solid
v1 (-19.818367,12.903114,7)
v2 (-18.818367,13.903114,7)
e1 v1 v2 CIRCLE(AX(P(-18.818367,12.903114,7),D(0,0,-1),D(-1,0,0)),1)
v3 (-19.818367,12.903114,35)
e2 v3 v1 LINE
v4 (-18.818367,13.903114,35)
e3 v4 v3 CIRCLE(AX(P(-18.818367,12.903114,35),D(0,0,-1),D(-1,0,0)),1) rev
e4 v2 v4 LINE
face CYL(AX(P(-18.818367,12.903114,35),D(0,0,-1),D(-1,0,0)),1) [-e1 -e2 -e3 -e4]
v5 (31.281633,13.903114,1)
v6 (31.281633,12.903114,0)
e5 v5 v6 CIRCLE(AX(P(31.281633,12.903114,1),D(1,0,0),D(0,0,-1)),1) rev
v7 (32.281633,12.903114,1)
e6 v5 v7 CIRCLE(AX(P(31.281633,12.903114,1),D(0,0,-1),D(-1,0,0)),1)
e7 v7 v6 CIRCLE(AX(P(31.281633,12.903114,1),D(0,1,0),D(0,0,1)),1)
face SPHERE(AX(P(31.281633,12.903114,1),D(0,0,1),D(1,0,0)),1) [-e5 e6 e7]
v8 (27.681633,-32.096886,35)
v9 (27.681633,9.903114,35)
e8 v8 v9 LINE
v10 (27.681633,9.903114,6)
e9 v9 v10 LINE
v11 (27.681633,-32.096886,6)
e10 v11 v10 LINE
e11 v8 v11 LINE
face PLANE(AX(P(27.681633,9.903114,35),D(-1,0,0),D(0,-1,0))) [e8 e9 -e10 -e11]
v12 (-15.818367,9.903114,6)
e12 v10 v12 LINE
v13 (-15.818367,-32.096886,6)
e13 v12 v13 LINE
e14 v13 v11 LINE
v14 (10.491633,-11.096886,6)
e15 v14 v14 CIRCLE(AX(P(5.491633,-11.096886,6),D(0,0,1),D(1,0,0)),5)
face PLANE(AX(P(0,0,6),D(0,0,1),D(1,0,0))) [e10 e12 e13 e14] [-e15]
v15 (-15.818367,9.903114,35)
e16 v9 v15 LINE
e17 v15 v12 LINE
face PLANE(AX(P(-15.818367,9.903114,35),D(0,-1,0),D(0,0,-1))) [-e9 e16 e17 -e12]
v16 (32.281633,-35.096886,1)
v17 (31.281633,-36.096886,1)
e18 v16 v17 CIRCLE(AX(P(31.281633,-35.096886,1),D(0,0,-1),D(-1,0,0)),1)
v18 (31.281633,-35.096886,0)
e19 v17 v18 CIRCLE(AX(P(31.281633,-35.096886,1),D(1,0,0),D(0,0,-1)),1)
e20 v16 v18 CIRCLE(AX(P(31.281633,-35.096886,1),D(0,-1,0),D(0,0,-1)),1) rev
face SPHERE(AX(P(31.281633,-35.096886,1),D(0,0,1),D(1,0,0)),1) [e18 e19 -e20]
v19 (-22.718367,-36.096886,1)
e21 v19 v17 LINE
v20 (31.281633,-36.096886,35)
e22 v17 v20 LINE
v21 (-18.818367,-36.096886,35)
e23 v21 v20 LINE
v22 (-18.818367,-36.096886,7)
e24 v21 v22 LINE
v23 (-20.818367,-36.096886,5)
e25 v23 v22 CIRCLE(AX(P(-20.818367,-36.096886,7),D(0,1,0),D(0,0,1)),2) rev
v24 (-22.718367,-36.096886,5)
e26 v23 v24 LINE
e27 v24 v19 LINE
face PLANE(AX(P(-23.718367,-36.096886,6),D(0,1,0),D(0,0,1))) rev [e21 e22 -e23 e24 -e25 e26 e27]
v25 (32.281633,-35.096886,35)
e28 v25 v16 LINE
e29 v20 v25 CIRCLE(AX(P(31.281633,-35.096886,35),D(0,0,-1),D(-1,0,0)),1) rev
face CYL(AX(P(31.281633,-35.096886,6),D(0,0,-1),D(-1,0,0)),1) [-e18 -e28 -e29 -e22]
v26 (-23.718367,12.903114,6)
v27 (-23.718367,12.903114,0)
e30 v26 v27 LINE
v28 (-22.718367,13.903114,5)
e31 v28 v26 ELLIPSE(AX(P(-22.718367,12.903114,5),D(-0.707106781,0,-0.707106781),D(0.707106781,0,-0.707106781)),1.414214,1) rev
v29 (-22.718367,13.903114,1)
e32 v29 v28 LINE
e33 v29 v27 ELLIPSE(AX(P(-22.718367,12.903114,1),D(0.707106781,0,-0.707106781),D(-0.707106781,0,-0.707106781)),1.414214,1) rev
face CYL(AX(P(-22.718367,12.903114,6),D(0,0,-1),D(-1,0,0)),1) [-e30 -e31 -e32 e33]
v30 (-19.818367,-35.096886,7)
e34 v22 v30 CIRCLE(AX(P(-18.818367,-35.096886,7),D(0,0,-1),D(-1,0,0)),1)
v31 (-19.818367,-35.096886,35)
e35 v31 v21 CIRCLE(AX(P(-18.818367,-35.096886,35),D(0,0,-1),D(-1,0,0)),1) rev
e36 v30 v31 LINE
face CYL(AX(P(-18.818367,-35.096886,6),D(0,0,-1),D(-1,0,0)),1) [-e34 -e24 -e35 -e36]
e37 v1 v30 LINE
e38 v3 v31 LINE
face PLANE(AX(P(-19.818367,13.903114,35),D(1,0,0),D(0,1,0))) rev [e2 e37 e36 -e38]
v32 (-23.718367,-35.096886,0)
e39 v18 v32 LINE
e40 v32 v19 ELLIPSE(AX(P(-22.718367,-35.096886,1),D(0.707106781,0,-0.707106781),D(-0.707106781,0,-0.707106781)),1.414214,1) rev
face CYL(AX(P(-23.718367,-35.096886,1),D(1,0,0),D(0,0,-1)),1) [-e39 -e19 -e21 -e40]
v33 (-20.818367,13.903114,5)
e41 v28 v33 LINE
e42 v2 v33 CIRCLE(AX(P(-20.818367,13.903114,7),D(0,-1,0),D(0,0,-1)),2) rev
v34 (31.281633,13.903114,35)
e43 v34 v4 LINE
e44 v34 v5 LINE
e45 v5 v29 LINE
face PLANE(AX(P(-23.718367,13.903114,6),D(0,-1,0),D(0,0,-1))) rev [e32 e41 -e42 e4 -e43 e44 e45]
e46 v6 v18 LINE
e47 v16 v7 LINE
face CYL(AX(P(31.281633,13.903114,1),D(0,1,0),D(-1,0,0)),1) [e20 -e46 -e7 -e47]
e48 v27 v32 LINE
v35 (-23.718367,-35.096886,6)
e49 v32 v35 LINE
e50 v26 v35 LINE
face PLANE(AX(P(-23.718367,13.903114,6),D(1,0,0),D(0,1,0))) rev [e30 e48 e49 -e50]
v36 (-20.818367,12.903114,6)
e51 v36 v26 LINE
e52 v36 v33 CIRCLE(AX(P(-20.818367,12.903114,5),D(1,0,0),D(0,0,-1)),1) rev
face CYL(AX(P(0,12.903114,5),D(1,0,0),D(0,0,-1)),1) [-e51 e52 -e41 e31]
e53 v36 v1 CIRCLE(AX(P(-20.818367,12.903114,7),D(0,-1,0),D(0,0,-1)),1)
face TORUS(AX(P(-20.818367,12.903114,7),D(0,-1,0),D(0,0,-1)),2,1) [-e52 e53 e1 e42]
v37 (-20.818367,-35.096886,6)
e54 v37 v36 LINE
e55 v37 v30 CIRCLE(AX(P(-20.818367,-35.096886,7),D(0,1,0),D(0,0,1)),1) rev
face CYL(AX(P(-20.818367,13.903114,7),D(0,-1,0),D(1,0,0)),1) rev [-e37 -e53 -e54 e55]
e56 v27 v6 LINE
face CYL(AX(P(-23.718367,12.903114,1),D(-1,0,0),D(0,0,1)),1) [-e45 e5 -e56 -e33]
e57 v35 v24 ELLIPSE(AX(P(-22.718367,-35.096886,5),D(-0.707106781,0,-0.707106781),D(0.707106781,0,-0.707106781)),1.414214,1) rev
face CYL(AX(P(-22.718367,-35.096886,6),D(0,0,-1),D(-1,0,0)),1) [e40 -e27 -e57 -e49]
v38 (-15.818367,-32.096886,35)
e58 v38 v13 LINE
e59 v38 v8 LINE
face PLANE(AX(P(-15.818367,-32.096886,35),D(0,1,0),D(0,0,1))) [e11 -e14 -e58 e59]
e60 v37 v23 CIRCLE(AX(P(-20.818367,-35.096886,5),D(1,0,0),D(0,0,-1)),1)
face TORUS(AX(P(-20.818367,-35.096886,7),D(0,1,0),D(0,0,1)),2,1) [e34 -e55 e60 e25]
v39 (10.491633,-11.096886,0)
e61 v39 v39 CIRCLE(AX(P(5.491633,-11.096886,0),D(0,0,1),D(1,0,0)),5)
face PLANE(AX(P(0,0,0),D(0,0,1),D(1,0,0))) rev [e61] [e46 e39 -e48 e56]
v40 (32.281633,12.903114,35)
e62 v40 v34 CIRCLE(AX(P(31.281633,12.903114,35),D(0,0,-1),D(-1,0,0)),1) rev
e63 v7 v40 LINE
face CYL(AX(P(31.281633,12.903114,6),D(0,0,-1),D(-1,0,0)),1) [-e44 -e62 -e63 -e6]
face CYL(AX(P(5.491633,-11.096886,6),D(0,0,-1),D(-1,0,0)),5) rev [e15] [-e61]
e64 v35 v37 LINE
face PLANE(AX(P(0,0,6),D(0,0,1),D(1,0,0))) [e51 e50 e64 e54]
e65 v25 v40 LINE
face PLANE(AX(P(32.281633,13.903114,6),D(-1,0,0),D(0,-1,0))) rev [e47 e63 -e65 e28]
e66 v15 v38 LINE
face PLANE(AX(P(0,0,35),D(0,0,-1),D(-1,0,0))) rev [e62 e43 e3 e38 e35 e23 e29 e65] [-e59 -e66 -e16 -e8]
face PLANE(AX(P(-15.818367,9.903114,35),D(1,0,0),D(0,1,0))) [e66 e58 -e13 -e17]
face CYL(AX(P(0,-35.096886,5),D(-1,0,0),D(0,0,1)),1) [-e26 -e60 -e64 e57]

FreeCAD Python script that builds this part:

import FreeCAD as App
import Part
import Sketcher
from FreeCAD import Vector


def edges_at(feature, points):
    """Names of the edges that pass closest to the given points."""
    edges = feature.Shape.Edges
    near = lambda p: min(range(len(edges)), key=lambda i: edges[i].distToShape(Part.Vertex(*p))[0])
    return sorted({f"Edge{near(p) + 1}" for p in points})


def add_polygon(sketch, points):
    """Adds a closed chain of lines whose ends are joined by coincident constraints."""
    first, n = sketch.GeometryCount, len(points)
    for a, b in zip(points, points[1:] + points[:1]):
        sketch.addGeometry(Part.LineSegment(App.Vector(*a, 0), App.Vector(*b, 0)), False)
    for i in range(n):
        sketch.addConstraint(Sketcher.Constraint("Coincident", first + i, 2, first + (i + 1) % n, 1))

doc = App.newDocument("Part")
body = doc.addObject("PartDesign::Body", "Body")

# Sketch on XY plane
sketch1 = doc.addObject("Sketcher::SketchObject", "Sketch")
body.addObject(sketch1)
sketch1.AttachmentSupport = (doc.XY_Plane, [""])
sketch1.MapMode = "FlatFace"
add_polygon(sketch1, [(-23.718367, 13.903114), (-23.718367, -36.096886), (32.281633, -36.096886), (32.281633, 13.903114)])  # lines 0-3
sketch1.addGeometry(Part.Circle(Vector(5.491633, -11.096886, 0), Vector(0, 0, 1), 5), False)  # 4
sketch1.addConstraint([
    Sketcher.Constraint("Vertical", 0),
    Sketcher.Constraint("Horizontal", 1),
    Sketcher.Constraint("Vertical", 2),
    Sketcher.Constraint("Horizontal", 3),
    Sketcher.Constraint("Diameter", 4, 10.0),
    Sketcher.Constraint("DistanceX", 1, 1, 1, 2, 56.0),
    Sketcher.Constraint("DistanceY", 0, 2, 0, 1, 50.0),
    Sketcher.Constraint("DistanceY", 0, 2, 4, 3, 25.0),
    Sketcher.Constraint("DistanceX", 0, 2, 4, 3, 29.21),
    Sketcher.Constraint("DistanceX", -1, 1, 4, 3, 5.491633),
    Sketcher.Constraint("DistanceY", 4, 3, -1, 1, 11.096886),
])
pad1 = doc.addObject("PartDesign::Pad", "Pad")
body.addObject(pad1)
pad1.Profile = sketch1
pad1.Length = 6

# Sketch on XY plane
sketch2 = doc.addObject("Sketcher::SketchObject", "Sketch001")
body.addObject(sketch2)
sketch2.AttachmentSupport = (doc.XY_Plane, [""])
sketch2.MapMode = "FlatFace"
sketch2.AttachmentOffset = App.Placement(Vector(0, 0, 6), App.Rotation())
add_polygon(sketch2, [(-19.818367, 13.903114), (-19.818367, -36.096886), (32.281633, -36.096886), (32.281633, 13.903114)])  # lines 0-3
add_polygon(sketch2, [(27.681633, -32.096886), (-15.818367, -32.096886), (-15.818367, 9.903114), (27.681633, 9.903114)])  # lines 4-7
sketch2.addConstraint([
    Sketcher.Constraint("Vertical", 0),
    Sketcher.Constraint("Horizontal", 1),
    Sketcher.Constraint("Vertical", 2),
    Sketcher.Constraint("Horizontal", 3),
    Sketcher.Constraint("Horizontal", 4),
    Sketcher.Constraint("Vertical", 5),
    Sketcher.Constraint("Horizontal", 6),
    Sketcher.Constraint("Vertical", 7),
    Sketcher.Constraint("DistanceY", 0, 2, 0, 1, 50.0),
    Sketcher.Constraint("DistanceY", 5, 1, 5, 2, 42.0),
    Sketcher.Constraint("DistanceX", 1, 1, 1, 2, 52.1),
    Sketcher.Constraint("DistanceX", 4, 2, 4, 1, 43.5),
    Sketcher.Constraint("DistanceX", 0, 2, 4, 2, 4.0),
    Sketcher.Constraint("DistanceY", 0, 2, 4, 2, 4.0),
    Sketcher.Constraint("DistanceX", 0, 2, -1, 1, 19.818367),
    Sketcher.Constraint("DistanceY", 0, 2, -1, 1, 36.096886),
])
pad2 = doc.addObject("PartDesign::Pad", "Pad001")
body.addObject(pad2)
pad2.Profile = sketch2
pad2.Length = 29
doc.recompute()

fillet = doc.addObject("PartDesign::Fillet", "Fillet")
body.addObject(fillet)
fillet.Base = (pad2, edges_at(pad2, [
    (-21.768, 13.903, 6),
    (-19.818, -11.097, 6),
    (-19.818, 13.903, 20.5),
    (-19.818, -36.097, 20.5),
    (4.282, 13.903, 0),
    (32.282, -11.097, 0),
    (4.282, -36.097, 0),
    (-23.718, 13.903, 3),
    (32.282, 13.903, 17.5),
    (32.282, -36.097, 17.5),
    (-23.718, -36.097, 3),
    (-21.768, -36.097, 6),
]))
fillet.Radius = 1

doc.recompute()
